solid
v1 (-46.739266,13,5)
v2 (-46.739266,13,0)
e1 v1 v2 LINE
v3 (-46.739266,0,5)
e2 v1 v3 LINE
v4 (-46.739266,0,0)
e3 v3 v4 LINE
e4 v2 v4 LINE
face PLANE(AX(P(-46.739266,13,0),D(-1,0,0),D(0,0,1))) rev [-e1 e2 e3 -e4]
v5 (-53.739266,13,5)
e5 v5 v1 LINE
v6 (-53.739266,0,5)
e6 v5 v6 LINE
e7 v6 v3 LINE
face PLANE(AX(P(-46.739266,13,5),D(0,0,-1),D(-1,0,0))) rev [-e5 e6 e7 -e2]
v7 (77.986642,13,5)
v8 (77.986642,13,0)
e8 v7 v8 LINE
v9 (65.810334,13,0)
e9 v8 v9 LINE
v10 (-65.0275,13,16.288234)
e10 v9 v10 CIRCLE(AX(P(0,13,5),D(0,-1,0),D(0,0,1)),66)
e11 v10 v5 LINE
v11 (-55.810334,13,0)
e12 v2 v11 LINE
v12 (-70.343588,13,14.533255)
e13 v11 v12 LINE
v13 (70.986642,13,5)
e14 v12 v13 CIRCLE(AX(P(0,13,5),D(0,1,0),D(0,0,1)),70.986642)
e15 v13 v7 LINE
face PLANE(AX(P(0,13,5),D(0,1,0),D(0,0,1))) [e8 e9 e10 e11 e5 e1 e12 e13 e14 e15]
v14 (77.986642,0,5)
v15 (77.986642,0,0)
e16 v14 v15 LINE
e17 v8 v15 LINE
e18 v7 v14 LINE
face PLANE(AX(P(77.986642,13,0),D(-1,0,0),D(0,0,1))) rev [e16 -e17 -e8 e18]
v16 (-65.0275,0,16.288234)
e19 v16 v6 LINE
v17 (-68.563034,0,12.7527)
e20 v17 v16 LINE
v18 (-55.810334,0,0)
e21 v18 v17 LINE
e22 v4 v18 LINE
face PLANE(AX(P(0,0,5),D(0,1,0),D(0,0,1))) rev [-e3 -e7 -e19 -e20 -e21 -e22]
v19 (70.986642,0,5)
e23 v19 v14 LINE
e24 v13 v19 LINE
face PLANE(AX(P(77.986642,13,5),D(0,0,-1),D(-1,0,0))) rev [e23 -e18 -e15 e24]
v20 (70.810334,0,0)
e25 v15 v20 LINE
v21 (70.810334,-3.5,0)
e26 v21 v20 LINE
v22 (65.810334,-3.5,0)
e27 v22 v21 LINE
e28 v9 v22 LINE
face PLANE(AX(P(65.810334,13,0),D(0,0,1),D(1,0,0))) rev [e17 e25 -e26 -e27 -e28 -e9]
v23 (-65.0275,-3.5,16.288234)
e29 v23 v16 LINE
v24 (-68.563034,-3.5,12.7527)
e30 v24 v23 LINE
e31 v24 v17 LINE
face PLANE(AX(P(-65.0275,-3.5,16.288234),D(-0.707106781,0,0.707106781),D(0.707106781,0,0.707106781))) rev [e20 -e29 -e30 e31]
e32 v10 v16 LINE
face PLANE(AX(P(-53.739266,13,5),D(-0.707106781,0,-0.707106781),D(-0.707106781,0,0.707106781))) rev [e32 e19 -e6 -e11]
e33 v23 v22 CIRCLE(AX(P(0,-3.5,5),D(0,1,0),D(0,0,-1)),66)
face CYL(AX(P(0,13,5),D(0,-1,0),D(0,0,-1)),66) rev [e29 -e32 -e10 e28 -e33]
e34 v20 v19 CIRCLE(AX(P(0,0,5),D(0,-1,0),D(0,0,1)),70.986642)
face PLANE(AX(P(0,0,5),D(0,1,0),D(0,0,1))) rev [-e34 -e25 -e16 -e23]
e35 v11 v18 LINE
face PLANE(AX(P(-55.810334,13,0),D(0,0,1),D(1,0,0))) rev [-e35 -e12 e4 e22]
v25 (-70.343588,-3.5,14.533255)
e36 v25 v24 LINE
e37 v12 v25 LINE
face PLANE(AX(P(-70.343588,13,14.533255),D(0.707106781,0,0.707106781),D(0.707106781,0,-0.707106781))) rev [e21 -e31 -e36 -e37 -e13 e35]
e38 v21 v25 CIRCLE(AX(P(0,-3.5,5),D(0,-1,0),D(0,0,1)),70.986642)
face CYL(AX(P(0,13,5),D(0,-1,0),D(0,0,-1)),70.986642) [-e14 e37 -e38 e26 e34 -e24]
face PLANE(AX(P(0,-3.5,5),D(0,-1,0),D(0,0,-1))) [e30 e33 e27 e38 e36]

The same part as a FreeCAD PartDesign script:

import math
import FreeCAD as App
import Part
import Sketcher

V = App.Vector
Q = App.Units.Quantity

doc = App.newDocument("Part")
body = doc.addObject("PartDesign::Body", "Body")

sketch1 = body.newObject("Sketcher::SketchObject", "Sketch")
sketch1.AttachmentSupport = (doc.getObject("XZ_Plane"), [""])
sketch1.MapMode = "FlatFace"
sketch1.addGeometry(Part.LineSegment(V(-56, 0, 0), V(-70, 15, 0)), False)
sketch1.addGeometry(Part.ArcOfCircle(Part.Circle(V(0, 5, 0), V(0, 0, 1), 71), math.radians(0), math.radians(172)), False)
sketch1.addGeometry(Part.LineSegment(V(71, 5, 0), V(78, 5, 0)), False)
sketch1.addGeometry(Part.LineSegment(V(78, 5, 0), V(78, 0, 0)), False)
sketch1.addGeometry(Part.LineSegment(V(78, 0, 0), V(66, 0, 0)), False)
sketch1.addGeometry(Part.ArcOfCircle(Part.Circle(V(0, 5, 0), V(0, 0, 1), 66), math.radians(-4), math.radians(170)), False)
sketch1.addGeometry(Part.LineSegment(V(-65, 16, 0), V(-54, 5, 0)), False)
sketch1.addGeometry(Part.LineSegment(V(-54, 5, 0), V(-47, 5, 0)), False)
sketch1.addGeometry(Part.LineSegment(V(-47, 5, 0), V(-47, 0, 0)), False)
sketch1.addGeometry(Part.LineSegment(V(-47, 0, 0), V(-56, 0, 0)), False)
sketch1.addConstraint(Sketcher.Constraint("Coincident", 0, 2, 1, 2))
sketch1.addConstraint(Sketcher.Constraint("Coincident", 1, 1, 2, 1))
sketch1.addConstraint(Sketcher.Constraint("Coincident", 2, 2, 3, 1))
sketch1.addConstraint(Sketcher.Constraint("Coincident", 3, 2, 4, 1))
sketch1.addConstraint(Sketcher.Constraint("Coincident", 4, 2, 5, 1))
sketch1.addConstraint(Sketcher.Constraint("Coincident", 5, 2, 6, 1))
sketch1.addConstraint(Sketcher.Constraint("Coincident", 6, 2, 7, 1))
sketch1.addConstraint(Sketcher.Constraint("Coincident", 7, 2, 8, 1))
sketch1.addConstraint(Sketcher.Constraint("Coincident", 8, 2, 9, 1))
sketch1.addConstraint(Sketcher.Constraint("Coincident", 9, 2, 0, 1))
sketch1.addConstraint(Sketcher.Constraint("Horizontal", 2))
sketch1.addConstraint(Sketcher.Constraint("Vertical", 3))
sketch1.addConstraint(Sketcher.Constraint("Horizontal", 4))
sketch1.addConstraint(Sketcher.Constraint("Horizontal", 7))
sketch1.addConstraint(Sketcher.Constraint("Vertical", 8))
sketch1.addConstraint(Sketcher.Constraint("Horizontal", 9))
sketch1.addConstraint(Sketcher.Constraint("Coincident", 5, 3, 1, 3))
sketch1.addConstraint(Sketcher.Constraint("PointOnObject", 1, 3, -2))
sketch1.addConstraint(Sketcher.Constraint("PointOnObject", 3, 2, -1))
sketch1.addConstraint(Sketcher.Constraint("PointOnObject", 8, 2, -1))
sketch1.addConstraint(Sketcher.Constraint("Parallel", 0, 6))
sketch1.addConstraint(Sketcher.Constraint("Horizontal", 5, 3, 1, 1))
sketch1.addConstraint(Sketcher.Constraint("Horizontal", 2, 2, 6, 2))
sketch1.addConstraint(Sketcher.Constraint("Equal", 2, 7))
sketch1.addConstraint(Sketcher.Constraint("Radius", 5, 66.0))
sketch1.addConstraint(Sketcher.Constraint("DistanceX", 2, 1, 2, 2, 7.0))
sketch1.addConstraint(Sketcher.Constraint("DistanceY", 3, 2, 3, 1, 5.0))
sketch1.addConstraint(Sketcher.Constraint("Angle", 0, Q("135 deg")))
sketch1.addConstraint(Sketcher.Constraint("Radius", 1, 70.986642))
sketch1.addConstraint(Sketcher.Constraint("DistanceX", 5, 2, -1, 1, 65.0275))
sketch1.addConstraint(Sketcher.Constraint("DistanceX", 9, 2, 9, 1, 9.071068))
pad1 = body.newObject("PartDesign::Pad", "Pad")
pad1.Profile = sketch1
pad1.Length = 13
pad1.Reversed = True

sketch2 = body.newObject("Sketcher::SketchObject", "Sketch001")
sketch2.AttachmentSupport = (doc.getObject("XZ_Plane"), [""])
sketch2.MapMode = "FlatFace"
sketch2.addGeometry(Part.LineSegment(V(-68.6, 12.8, 0), V(-65, 16.3, 0)), False)
sketch2.addGeometry(Part.ArcOfCircle(Part.Circle(V(0, 5, 0), V(0, 0, 1), 66), math.radians(-4), math.radians(170)), False)
sketch2.addGeometry(Part.LineSegment(V(65.8, 0, 0), V(70.8, 0, 0)), False)
sketch2.addGeometry(Part.ArcOfCircle(Part.Circle(V(0, 5, 0), V(0, 0, 1), 71), math.radians(-4), math.radians(172)), False)
sketch2.addGeometry(Part.LineSegment(V(-70.3, 14.5, 0), V(-68.6, 12.8, 0)), False)
sketch2.addConstraint(Sketcher.Constraint("Coincident", 0, 2, 1, 2))
sketch2.addConstraint(Sketcher.Constraint("Coincident", 1, 1, 2, 1))
sketch2.addConstraint(Sketcher.Constraint("Coincident", 2, 2, 3, 1))
sketch2.addConstraint(Sketcher.Constraint("Coincident", 3, 2, 4, 1))
sketch2.addConstraint(Sketcher.Constraint("Coincident", 4, 2, 0, 1))
sketch2.addConstraint(Sketcher.Constraint("Horizontal", 2))
sketch2.addConstraint(Sketcher.Constraint("Coincident", 3, 3, 1, 3))
sketch2.addConstraint(Sketcher.Constraint("PointOnObject", 1, 3, -2))
sketch2.addConstraint(Sketcher.Constraint("PointOnObject", 1, 1, -1))
sketch2.addConstraint(Sketcher.Constraint("Perpendicular", 0, 4))
sketch2.addConstraint(Sketcher.Constraint("Radius", 1, 66.0))
sketch2.addConstraint(Sketcher.Constraint("DistanceX", 2, 1, 2, 2, 5.0))
sketch2.addConstraint(Sketcher.Constraint("Angle", 0, Q("45 deg")))
sketch2.addConstraint(Sketcher.Constraint("Distance", 0, 5.0))
sketch2.addConstraint(Sketcher.Constraint("DistanceY", -1, 1, 1, 3, 5.0))
sketch2.addConstraint(Sketcher.Constraint("DistanceX", 0, 2, -1, 1, 65.0275))
pad2 = body.newObject("PartDesign::Pad", "Pad001")
pad2.Profile = sketch2
pad2.Length = 3.5

doc.recompute()
